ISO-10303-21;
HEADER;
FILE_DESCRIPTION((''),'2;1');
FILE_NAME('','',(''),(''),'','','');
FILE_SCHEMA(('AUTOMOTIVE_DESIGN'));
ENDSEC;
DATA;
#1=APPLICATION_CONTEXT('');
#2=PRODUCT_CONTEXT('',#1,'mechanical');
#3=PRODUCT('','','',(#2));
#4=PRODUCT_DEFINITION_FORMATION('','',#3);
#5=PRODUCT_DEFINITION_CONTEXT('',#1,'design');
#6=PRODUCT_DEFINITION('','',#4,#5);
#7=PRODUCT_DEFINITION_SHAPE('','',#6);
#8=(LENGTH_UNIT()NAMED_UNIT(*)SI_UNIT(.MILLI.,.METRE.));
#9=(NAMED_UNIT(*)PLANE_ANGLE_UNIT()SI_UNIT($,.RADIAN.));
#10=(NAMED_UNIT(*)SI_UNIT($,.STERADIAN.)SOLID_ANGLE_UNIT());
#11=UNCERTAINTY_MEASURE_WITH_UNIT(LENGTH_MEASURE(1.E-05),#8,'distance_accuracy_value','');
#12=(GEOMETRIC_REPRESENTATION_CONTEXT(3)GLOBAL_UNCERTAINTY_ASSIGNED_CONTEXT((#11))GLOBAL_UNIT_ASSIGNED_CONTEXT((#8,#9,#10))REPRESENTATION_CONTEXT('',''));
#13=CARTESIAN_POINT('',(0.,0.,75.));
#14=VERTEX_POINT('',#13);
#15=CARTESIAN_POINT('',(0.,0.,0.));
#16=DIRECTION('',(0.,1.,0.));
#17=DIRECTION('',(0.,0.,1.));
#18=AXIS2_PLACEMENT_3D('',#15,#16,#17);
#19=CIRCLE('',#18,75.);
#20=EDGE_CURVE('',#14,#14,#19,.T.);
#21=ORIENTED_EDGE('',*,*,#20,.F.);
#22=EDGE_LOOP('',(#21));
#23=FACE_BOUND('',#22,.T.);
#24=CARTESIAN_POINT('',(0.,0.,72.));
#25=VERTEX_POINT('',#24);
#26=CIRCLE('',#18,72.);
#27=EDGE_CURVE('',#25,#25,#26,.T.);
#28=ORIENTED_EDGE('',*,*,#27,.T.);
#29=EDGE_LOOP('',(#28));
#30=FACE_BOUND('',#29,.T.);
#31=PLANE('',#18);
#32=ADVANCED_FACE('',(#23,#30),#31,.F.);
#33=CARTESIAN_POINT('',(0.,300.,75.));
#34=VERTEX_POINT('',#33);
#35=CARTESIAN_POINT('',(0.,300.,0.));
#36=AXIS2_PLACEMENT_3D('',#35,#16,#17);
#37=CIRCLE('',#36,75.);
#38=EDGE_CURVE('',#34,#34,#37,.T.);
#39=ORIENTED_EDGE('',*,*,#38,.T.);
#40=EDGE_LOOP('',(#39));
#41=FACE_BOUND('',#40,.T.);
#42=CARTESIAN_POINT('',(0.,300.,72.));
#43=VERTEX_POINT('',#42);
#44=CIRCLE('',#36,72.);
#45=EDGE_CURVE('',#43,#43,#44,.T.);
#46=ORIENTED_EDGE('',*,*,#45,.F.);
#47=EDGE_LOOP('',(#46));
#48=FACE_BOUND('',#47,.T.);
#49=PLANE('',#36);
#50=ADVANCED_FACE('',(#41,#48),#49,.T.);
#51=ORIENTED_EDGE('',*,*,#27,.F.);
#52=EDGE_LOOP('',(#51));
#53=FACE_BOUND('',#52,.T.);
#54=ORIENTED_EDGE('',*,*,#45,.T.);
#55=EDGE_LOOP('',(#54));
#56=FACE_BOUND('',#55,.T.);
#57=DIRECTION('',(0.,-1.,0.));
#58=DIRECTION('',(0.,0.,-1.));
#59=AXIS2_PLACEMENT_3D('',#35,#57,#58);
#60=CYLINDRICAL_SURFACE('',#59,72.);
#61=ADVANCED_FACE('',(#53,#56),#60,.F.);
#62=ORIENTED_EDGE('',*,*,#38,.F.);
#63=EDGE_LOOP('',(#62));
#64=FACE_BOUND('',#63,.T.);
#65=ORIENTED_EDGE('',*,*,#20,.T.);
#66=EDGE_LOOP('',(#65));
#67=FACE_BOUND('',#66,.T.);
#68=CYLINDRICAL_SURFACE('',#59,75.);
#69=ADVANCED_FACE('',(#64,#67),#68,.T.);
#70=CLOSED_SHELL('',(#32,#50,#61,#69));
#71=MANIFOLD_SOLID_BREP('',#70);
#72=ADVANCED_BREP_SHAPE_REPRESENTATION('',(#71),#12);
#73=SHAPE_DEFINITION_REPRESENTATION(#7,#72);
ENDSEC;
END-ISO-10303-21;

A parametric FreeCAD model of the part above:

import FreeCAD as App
import Part
import Sketcher
from FreeCAD import Vector

doc = App.newDocument("Part")
params = doc.addObject("Spreadsheet::Sheet", "Params")
for row, (alias, value) in enumerate([
    ("sketch1_diameter", "150 mm"),
    ("sketch1_diameter2", "144 mm"),
    ("pad1_length", "300 mm"),
], start=1):
    params.set(f"A{row}", alias)
    params.set(f"B{row}", "=" + value)
    params.setAlias(f"B{row}", alias)

body = doc.addObject("PartDesign::Body", "Body")

sketch1 = doc.addObject("Sketcher::SketchObject", "Sketch")
body.addObject(sketch1)
sketch1.AttachmentSupport = (doc.XZ_Plane, [""])
sketch1.MapMode = "FlatFace"
sketch1.addGeometry(Part.Circle(Vector(0, 0, 0), Vector(0, 0, 1), 75), False)
sketch1.addGeometry(Part.Circle(Vector(0, 0, 0), Vector(0, 0, 1), 72), False)
sketch1.addConstraint(Sketcher.Constraint("Coincident", 0, 3, -1, 1))
sketch1.addConstraint(Sketcher.Constraint("Coincident", 1, 3, -1, 1))
sketch1.addConstraint(Sketcher.Constraint("Diameter", 0, 150.0))
sketch1.addConstraint(Sketcher.Constraint("Diameter", 1, 144.0))
sketch1.setExpression("Constraints[2]", "Params.sketch1_diameter")
sketch1.setExpression("Constraints[3]", "Params.sketch1_diameter2")
pad1 = doc.addObject("PartDesign::Pad", "Pad")
body.addObject(pad1)
pad1.Profile = sketch1
pad1.setExpression("Length", "Params.pad1_length")
pad1.Reversed = True

doc.recompute()
